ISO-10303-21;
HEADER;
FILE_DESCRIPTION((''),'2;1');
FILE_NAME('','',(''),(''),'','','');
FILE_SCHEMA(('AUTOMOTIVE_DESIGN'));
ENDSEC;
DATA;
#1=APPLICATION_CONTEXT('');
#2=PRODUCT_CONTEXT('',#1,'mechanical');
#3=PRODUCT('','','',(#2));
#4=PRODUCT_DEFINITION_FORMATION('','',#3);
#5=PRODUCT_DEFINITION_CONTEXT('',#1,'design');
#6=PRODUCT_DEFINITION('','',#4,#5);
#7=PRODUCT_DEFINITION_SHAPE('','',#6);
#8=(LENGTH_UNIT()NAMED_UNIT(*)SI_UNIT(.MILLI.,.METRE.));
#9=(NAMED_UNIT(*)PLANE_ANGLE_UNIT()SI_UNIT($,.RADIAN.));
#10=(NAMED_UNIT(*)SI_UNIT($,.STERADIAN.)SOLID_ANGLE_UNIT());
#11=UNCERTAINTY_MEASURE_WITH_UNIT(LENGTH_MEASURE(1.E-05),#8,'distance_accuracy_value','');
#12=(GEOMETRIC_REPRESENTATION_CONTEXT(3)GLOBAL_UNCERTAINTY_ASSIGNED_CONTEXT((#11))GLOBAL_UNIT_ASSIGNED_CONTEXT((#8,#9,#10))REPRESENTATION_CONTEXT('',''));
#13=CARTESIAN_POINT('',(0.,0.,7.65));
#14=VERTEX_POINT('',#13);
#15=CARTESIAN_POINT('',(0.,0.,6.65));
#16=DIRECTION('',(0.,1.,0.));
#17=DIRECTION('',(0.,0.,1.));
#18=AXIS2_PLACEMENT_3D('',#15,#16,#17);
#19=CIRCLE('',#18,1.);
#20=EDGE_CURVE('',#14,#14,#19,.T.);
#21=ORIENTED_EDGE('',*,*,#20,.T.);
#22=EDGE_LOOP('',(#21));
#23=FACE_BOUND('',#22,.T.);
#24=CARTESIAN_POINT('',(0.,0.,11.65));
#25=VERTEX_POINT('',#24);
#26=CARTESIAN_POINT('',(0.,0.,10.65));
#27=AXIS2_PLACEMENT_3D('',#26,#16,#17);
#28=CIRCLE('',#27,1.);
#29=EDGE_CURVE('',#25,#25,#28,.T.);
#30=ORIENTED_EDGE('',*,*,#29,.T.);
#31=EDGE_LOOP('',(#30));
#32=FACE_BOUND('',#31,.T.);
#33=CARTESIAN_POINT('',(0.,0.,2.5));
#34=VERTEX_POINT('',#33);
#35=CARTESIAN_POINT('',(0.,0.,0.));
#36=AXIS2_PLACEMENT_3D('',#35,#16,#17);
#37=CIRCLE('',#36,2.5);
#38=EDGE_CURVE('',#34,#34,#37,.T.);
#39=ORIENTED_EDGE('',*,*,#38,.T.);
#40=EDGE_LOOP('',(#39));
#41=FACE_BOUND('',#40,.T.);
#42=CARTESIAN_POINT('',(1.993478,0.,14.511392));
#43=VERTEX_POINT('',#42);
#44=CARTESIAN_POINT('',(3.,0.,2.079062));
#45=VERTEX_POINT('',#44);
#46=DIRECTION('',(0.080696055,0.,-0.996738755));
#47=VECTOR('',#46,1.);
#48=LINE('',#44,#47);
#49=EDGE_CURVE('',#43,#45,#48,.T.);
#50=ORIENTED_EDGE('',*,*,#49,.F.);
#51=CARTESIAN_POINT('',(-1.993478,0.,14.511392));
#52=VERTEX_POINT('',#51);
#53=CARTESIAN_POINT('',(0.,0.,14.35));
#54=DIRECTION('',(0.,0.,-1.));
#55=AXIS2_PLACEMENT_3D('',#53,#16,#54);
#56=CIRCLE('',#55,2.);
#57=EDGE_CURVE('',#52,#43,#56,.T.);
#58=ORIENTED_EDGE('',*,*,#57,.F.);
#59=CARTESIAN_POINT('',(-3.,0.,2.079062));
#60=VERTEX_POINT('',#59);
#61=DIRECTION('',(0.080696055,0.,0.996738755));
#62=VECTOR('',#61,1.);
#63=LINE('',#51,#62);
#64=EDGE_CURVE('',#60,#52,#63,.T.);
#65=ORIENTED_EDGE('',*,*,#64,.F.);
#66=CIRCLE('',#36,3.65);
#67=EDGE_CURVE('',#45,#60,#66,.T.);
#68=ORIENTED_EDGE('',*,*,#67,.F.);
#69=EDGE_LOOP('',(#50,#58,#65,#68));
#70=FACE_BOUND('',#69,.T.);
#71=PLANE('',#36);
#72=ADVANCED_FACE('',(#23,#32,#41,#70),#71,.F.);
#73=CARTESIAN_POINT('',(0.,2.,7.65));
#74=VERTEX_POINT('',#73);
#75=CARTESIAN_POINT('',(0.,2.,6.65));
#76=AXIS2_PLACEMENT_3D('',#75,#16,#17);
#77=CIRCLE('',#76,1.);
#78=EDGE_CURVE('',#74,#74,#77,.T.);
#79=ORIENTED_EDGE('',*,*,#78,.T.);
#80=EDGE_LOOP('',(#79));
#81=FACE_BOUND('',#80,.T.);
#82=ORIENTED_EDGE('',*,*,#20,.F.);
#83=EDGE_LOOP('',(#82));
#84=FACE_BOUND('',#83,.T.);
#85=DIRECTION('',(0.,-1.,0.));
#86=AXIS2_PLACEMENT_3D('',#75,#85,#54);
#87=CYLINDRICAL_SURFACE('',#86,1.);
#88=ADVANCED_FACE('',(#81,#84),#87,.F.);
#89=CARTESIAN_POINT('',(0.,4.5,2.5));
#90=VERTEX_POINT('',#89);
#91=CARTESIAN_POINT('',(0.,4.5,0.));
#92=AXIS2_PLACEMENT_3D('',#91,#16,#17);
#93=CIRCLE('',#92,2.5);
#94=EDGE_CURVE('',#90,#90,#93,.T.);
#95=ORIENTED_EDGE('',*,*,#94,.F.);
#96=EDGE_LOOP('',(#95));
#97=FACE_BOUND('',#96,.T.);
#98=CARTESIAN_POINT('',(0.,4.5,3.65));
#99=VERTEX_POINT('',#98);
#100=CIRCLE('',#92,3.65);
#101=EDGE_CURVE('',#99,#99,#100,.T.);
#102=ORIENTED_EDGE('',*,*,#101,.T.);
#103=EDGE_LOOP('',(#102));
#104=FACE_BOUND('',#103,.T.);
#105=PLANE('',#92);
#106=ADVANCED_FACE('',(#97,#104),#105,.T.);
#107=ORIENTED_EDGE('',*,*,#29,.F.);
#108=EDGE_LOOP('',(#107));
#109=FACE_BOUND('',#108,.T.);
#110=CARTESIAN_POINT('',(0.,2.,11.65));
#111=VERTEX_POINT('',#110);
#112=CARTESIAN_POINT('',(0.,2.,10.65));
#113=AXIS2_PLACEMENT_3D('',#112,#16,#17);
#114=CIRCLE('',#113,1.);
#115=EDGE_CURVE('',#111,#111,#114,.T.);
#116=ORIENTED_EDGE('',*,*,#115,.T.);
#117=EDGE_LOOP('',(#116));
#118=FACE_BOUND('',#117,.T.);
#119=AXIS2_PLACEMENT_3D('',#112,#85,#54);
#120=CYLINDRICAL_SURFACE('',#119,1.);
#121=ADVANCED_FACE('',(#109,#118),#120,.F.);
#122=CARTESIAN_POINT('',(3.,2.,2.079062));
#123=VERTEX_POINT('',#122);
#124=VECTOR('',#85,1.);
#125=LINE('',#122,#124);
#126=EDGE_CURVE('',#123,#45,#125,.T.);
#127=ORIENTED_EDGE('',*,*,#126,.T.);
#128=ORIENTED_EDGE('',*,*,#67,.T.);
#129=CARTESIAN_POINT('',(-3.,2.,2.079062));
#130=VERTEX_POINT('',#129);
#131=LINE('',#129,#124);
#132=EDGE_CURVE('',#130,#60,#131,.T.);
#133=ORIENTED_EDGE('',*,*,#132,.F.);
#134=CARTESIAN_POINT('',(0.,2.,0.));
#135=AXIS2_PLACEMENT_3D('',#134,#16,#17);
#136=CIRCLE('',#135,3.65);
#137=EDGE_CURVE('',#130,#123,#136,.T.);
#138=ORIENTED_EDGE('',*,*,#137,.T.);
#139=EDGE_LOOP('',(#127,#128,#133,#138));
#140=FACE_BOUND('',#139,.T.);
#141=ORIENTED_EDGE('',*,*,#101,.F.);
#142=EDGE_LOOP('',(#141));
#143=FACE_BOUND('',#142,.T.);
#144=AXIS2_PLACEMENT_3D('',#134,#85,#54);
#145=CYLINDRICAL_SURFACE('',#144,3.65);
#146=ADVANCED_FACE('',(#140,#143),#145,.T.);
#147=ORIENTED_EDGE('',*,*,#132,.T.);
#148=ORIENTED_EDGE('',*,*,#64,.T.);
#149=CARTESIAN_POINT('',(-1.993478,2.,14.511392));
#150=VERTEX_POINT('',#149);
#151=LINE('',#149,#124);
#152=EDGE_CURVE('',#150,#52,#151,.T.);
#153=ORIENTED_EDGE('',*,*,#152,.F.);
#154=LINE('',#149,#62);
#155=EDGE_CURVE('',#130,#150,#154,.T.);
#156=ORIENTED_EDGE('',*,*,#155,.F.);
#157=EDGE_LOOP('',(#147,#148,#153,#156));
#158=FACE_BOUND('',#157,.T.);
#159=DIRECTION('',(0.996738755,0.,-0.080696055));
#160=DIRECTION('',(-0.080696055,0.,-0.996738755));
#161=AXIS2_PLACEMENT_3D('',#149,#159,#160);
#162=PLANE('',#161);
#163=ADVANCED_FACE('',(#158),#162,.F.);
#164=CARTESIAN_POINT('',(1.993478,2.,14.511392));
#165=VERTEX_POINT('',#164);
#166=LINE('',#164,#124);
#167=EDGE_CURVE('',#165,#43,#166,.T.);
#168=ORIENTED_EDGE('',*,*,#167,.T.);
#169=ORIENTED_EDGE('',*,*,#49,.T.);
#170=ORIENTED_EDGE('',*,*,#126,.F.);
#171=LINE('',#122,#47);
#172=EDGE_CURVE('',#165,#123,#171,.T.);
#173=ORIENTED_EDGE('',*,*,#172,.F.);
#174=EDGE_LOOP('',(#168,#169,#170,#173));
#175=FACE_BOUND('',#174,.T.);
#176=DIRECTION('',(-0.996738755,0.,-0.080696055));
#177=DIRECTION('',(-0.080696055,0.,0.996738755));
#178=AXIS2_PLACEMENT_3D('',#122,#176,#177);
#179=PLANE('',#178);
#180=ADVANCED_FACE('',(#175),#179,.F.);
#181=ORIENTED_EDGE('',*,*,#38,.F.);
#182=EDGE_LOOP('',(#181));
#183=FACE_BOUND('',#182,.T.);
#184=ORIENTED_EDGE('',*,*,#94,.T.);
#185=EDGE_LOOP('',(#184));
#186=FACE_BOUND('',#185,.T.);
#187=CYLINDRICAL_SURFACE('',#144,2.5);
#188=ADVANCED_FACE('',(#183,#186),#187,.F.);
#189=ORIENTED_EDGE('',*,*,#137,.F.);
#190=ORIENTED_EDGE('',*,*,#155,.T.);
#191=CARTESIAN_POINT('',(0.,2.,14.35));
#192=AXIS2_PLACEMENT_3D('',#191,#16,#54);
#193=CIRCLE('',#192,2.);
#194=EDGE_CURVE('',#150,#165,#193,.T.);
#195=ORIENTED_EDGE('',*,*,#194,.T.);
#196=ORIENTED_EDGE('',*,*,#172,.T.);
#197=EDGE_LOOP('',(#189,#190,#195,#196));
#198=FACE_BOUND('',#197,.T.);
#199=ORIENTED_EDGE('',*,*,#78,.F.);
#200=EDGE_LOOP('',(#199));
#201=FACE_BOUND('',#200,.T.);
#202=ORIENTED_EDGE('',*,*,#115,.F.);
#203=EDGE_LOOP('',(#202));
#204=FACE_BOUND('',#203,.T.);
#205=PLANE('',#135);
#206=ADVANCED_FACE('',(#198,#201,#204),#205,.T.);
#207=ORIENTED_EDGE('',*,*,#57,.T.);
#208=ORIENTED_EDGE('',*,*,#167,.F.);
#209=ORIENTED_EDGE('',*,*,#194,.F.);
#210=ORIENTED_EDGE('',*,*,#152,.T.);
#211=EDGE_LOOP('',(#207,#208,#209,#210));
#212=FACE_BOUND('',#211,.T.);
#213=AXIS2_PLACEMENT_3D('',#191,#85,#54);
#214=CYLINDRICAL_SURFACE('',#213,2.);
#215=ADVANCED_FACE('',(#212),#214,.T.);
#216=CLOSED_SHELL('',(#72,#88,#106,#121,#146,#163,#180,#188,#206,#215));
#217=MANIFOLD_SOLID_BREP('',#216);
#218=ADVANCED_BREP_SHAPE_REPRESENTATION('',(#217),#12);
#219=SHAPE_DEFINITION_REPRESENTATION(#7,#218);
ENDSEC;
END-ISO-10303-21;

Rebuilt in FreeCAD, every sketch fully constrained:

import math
import FreeCAD as App
import Part
import Sketcher
Q = App.Units.Quantity

doc = App.newDocument("Part")
params = doc.addObject("Spreadsheet::Sheet", "Params")
for row, (alias, value) in enumerate([
    ("sketch1_diameter", "2 mm"),
    ("sketch1_diameter2", "5 mm"),
    ("sketch1_radius", "2 mm"),
    ("sketch1_radius2", "3.65 mm"),
    ("pad1_length", "2 mm"),
    ("sketch2_diameter", "5 mm"),
    ("sketch2_diameter2", "7.3 mm"),
    ("pad2_length", "2.5 mm"),
], start=1):
    params.set(f"A{row}", alias)
    params.set(f"B{row}", "=" + value)
    params.setAlias(f"B{row}", alias)

body = doc.addObject("PartDesign::Body", "Body")

sketch1 = body.newObject("Sketcher::SketchObject", "Sketch")
sketch1.AttachmentSupport = (doc.getObject("XZ_Plane"), [""])
sketch1.MapMode = "FlatFace"
sketch1.addGeometry([
    Part.LineSegment(App.Vector(1.993478, 14.511392, 0), App.Vector(3, 2.079062, 0)),
    Part.ArcOfCircle(Part.Circle(App.Vector(0, 0, 0), App.Vector(0, 0, 1), 3.65), math.radians(145.277237), math.radians(394.722763)),
    Part.LineSegment(App.Vector(-3, 2.079062, 0), App.Vector(-1.993478, 14.511392, 0)),
    Part.ArcOfCircle(Part.Circle(App.Vector(0, 14.35, 0), App.Vector(0, 0, 1), 2), math.radians(4.628576), math.radians(175.371424)),
    Part.Circle(App.Vector(0, 10.65, 0), App.Vector(0, 0, 1), 1),
    Part.Circle(App.Vector(0, 6.65, 0), App.Vector(0, 0, 1), 1),
    Part.Circle(App.Vector(0, 0, 0), App.Vector(0, 0, 1), 2.5),
], False)
sketch1.addConstraint([
    Sketcher.Constraint("Coincident", 0, 2, 1, 2),
    Sketcher.Constraint("Coincident", 1, 1, 2, 1),
    Sketcher.Constraint("Tangent", 2, 2, 3, 2),
    Sketcher.Constraint("Tangent", 3, 1, 0, 1),
    Sketcher.Constraint("Coincident", 1, 3, -1, 1),
    Sketcher.Constraint("Coincident", 6, 3, -1, 1),
    Sketcher.Constraint("Equal", 4, 5),
    Sketcher.Constraint("Symmetric", 2, 2, 3, 1, -2),
    Sketcher.Constraint("PointOnObject", 4, 3, -2),
    Sketcher.Constraint("PointOnObject", 5, 3, -2),
    Sketcher.Constraint("Diameter", 4, Q("2 mm")),
    Sketcher.Constraint("Diameter", 6, Q("5 mm")),
    Sketcher.Constraint("Radius", 3, Q("2 mm")),
    Sketcher.Constraint("Radius", 1, Q("3.65 mm")),
    Sketcher.Constraint("DistanceX", -1, 1, 0, 2, Q("3 mm")),
    Sketcher.Constraint("DistanceY", 5, 3, 4, 3, Q("4 mm")),
    Sketcher.Constraint("DistanceY", 4, 3, 3, 3, Q("3.7 mm")),
    Sketcher.Constraint("DistanceY", -1, 1, 3, 3, Q("14.35 mm")),
])
sketch1.setExpression("Constraints[10]", "Params.sketch1_diameter")
sketch1.setExpression("Constraints[11]", "Params.sketch1_diameter2")
sketch1.setExpression("Constraints[12]", "Params.sketch1_radius")
sketch1.setExpression("Constraints[13]", "Params.sketch1_radius2")
pad1 = body.newObject("PartDesign::Pad", "Pad")
pad1.Profile = sketch1
pad1.setExpression("Length", "Params.pad1_length")
pad1.Reversed = True

sketch2 = body.newObject("Sketcher::SketchObject", "Sketch001")
sketch2.AttachmentSupport = (doc.getObject("XZ_Plane"), [""])
sketch2.MapMode = "FlatFace"
sketch2.AttachmentOffset = App.Placement(App.Vector(0, 0, -2), App.Rotation())
sketch2.addGeometry([
    Part.Circle(App.Vector(0, 0, 0), App.Vector(0, 0, 1), 3.65),
    Part.Circle(App.Vector(0, 0, 0), App.Vector(0, 0, 1), 2.5),
], False)
sketch2.addConstraint([
    Sketcher.Constraint("Coincident", 0, 3, -1, 1),
    Sketcher.Constraint("Coincident", 1, 3, -1, 1),
    Sketcher.Constraint("Diameter", 1, Q("5 mm")),
    Sketcher.Constraint("Diameter", 0, Q("7.3 mm")),
])
sketch2.setExpression("Constraints[2]", "Params.sketch2_diameter")
sketch2.setExpression("Constraints[3]", "Params.sketch2_diameter2")
pad2 = body.newObject("PartDesign::Pad", "Pad001")
pad2.Profile = sketch2
pad2.setExpression("Length", "Params.pad2_length")
pad2.Reversed = True

doc.recompute()
